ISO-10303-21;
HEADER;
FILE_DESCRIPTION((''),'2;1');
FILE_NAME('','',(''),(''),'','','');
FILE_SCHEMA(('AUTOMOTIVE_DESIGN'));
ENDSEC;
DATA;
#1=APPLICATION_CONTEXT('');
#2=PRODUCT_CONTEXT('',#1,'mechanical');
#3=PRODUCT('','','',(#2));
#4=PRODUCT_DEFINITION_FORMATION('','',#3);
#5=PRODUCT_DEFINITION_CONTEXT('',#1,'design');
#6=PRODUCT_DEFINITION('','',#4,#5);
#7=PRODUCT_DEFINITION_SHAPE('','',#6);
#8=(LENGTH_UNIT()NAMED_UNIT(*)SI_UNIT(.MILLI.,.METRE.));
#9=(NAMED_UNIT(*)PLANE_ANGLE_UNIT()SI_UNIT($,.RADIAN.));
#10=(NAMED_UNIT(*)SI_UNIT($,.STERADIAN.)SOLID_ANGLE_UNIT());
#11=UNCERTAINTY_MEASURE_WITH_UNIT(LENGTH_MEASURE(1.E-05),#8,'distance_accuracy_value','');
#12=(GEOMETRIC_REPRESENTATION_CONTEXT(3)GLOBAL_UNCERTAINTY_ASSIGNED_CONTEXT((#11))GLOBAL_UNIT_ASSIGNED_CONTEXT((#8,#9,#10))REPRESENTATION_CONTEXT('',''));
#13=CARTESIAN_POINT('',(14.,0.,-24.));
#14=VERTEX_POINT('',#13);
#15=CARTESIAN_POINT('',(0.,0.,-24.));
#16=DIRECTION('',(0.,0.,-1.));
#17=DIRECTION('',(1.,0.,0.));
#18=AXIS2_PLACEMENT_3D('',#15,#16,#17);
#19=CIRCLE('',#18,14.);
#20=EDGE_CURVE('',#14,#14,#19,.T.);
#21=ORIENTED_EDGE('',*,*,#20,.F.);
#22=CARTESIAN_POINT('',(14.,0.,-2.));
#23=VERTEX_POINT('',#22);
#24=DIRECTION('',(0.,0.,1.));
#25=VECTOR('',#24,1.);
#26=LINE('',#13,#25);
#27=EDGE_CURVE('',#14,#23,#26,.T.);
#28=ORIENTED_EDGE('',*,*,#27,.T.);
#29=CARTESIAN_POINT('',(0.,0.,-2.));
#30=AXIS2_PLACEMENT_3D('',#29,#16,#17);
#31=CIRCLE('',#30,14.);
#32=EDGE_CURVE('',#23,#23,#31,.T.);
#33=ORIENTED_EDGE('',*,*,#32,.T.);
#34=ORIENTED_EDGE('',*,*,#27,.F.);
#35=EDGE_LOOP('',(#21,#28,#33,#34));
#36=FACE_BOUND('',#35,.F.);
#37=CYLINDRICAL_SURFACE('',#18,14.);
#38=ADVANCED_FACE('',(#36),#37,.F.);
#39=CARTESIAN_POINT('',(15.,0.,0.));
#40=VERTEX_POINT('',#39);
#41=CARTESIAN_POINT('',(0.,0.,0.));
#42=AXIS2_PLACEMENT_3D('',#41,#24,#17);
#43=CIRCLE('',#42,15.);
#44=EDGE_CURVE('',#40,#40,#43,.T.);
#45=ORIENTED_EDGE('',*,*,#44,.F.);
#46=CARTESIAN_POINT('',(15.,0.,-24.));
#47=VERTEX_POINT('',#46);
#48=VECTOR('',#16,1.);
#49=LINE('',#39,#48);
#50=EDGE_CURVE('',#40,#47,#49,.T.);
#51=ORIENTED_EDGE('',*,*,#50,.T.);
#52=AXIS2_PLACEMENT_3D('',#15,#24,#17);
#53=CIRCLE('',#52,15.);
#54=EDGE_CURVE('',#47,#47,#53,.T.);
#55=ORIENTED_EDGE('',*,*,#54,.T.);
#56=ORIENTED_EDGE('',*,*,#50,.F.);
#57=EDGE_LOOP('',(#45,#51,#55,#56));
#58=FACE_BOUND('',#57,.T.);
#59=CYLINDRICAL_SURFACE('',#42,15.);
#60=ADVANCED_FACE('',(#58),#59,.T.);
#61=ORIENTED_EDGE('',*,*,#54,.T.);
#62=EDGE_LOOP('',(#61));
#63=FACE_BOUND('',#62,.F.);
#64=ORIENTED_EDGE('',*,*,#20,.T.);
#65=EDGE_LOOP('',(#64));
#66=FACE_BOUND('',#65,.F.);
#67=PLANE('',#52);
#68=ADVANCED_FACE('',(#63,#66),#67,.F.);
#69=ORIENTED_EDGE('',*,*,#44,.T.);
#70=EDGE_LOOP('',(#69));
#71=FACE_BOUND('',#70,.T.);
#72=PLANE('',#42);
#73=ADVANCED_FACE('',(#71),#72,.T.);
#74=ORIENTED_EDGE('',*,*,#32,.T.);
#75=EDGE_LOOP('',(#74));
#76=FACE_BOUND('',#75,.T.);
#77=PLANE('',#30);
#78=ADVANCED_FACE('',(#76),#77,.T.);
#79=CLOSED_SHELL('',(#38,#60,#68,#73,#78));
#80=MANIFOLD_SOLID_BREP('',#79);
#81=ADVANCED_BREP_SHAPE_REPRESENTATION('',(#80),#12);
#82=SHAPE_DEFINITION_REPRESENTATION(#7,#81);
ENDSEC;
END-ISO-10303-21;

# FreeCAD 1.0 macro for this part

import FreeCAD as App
import Part
import Sketcher

V = App.Vector

doc = App.newDocument("Part")
params = doc.addObject("Spreadsheet::Sheet", "Params")
for row, (alias, value) in enumerate([
    ("sketch1_diameter", "30 mm"),
    ("pad1_length", "24 mm"),
    ("sketch2_diameter", "28 mm"),
    ("pocket1_length", "22 mm"),
], start=1):
    params.set(f"A{row}", alias)
    params.set(f"B{row}", "=" + value)
    params.setAlias(f"B{row}", alias)

body = doc.addObject("PartDesign::Body", "Body")

# Sketch on XY plane
sketch1 = body.newObject("Sketcher::SketchObject", "Sketch")
sketch1.AttachmentSupport = (doc.getObject("XY_Plane"), [""])
sketch1.MapMode = "FlatFace"
sketch1.addGeometry(Part.Circle(V(0, 0, 0), V(0, 0, 1), 15), False)
sketch1.addConstraint(Sketcher.Constraint("Coincident", 0, 3, -1, 1))
sketch1.addConstraint(Sketcher.Constraint("Diameter", 0, 30.0))
sketch1.setExpression("Constraints[1]", "Params.sketch1_diameter")
pad1 = body.newObject("PartDesign::Pad", "Pad")
pad1.Profile = sketch1
pad1.setExpression("Length", "Params.pad1_length")
pad1.Reversed = True

# Sketch on XY plane
sketch2 = body.newObject("Sketcher::SketchObject", "Sketch001")
sketch2.AttachmentSupport = (doc.getObject("XY_Plane"), [""])
sketch2.MapMode = "FlatFace"
sketch2.AttachmentOffset = App.Placement(V(0, 0, -24), App.Rotation())
sketch2.addGeometry(Part.Circle(V(0, 0, 0), V(0, 0, 1), 14), False)
sketch2.addConstraint(Sketcher.Constraint("Coincident", 0, 3, -1, 1))
sketch2.addConstraint(Sketcher.Constraint("Diameter", 0, 28.0))
sketch2.setExpression("Constraints[1]", "Params.sketch2_diameter")
pocket1 = body.newObject("PartDesign::Pocket", "Pocket")
pocket1.Profile = sketch2
pocket1.setExpression("Length", "Params.pocket1_length")
pocket1.Reversed = True

doc.recompute()
